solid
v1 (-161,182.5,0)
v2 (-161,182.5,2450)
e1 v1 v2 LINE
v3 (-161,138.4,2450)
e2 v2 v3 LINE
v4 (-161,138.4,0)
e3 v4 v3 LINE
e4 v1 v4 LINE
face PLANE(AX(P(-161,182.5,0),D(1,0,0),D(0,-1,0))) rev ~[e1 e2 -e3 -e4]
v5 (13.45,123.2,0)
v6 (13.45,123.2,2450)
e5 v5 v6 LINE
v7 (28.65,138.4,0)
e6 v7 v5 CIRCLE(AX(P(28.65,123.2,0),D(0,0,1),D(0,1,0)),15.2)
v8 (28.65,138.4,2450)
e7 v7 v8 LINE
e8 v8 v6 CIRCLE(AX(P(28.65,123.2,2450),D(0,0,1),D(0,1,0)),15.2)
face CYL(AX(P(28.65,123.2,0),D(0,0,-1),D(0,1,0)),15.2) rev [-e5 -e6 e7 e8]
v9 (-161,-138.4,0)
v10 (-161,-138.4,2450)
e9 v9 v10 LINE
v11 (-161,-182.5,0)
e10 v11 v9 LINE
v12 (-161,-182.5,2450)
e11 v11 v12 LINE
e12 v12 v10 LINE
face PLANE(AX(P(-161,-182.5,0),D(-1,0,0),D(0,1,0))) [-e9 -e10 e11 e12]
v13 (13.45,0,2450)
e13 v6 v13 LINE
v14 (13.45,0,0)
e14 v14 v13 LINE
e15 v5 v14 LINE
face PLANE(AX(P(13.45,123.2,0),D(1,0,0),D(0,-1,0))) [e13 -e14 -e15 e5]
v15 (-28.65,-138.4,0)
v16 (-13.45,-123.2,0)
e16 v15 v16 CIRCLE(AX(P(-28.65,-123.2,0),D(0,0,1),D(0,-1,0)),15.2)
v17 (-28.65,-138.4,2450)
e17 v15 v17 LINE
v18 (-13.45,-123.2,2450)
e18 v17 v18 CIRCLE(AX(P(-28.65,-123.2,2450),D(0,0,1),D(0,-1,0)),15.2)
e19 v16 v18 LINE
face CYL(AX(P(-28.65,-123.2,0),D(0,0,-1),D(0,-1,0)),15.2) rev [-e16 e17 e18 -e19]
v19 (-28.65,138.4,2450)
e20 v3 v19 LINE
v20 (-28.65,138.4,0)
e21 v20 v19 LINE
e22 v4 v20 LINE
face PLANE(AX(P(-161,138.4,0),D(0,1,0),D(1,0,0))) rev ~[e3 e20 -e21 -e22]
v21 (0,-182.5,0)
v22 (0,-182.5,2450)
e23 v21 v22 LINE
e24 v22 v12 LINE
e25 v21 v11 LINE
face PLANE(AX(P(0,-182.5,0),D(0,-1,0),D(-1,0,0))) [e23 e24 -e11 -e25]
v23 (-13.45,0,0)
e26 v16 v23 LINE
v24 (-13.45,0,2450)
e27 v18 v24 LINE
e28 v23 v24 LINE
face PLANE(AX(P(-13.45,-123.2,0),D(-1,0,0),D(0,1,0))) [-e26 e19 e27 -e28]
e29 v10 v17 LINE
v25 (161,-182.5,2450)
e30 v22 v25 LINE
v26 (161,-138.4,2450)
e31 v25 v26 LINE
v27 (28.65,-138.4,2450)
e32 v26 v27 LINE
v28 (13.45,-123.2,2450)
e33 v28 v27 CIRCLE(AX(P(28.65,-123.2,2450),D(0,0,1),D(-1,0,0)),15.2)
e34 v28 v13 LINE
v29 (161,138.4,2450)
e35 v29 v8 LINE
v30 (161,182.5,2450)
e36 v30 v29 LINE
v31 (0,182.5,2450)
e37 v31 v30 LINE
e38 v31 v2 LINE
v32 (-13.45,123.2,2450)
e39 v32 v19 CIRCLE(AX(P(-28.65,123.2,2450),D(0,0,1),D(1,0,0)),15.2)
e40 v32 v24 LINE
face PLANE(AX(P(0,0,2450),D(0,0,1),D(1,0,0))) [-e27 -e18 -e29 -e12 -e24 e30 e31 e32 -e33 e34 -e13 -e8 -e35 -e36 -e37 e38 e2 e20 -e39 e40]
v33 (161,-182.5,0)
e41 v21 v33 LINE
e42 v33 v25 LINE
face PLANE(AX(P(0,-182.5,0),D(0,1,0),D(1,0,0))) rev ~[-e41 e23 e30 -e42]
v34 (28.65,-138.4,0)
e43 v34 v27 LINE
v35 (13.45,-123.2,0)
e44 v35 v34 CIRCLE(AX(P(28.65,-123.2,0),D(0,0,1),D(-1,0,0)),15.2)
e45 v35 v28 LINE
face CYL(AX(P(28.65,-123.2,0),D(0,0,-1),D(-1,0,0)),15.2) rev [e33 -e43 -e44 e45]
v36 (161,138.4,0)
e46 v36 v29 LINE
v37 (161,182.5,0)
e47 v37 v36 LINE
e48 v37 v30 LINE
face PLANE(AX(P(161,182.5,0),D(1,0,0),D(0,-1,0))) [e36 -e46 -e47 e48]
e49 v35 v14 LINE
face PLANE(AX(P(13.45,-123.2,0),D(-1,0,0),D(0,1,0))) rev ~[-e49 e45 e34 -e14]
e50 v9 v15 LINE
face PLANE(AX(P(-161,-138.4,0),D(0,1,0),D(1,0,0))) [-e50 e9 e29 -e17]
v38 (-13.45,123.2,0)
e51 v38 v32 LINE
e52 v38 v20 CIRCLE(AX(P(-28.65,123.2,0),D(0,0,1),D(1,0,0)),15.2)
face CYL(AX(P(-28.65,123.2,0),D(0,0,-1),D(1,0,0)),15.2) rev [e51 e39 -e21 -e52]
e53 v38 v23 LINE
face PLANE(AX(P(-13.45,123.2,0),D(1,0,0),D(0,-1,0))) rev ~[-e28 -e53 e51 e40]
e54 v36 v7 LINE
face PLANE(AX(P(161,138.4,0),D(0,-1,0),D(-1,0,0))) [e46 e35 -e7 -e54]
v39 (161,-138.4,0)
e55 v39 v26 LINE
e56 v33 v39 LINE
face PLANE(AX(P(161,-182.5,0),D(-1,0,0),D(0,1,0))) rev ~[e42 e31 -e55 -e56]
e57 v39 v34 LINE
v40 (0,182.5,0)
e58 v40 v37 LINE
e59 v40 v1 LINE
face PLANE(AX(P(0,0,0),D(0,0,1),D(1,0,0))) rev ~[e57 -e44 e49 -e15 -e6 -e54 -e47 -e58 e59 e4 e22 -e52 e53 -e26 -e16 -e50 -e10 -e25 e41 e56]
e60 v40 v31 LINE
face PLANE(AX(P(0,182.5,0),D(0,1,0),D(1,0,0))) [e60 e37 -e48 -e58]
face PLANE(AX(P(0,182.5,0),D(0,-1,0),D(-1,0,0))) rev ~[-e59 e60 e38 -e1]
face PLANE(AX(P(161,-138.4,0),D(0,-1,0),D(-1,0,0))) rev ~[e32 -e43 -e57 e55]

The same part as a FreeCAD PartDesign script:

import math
import FreeCAD as App
import Part
import Sketcher
Q = App.Units.Quantity

doc = App.newDocument("Part")
body = doc.addObject("PartDesign::Body", "Body")

# Sketch on XY plane
sketch1 = doc.addObject("Sketcher::SketchObject", "Sketch")
body.addObject(sketch1)
sketch1.AttachmentSupport = (doc.XY_Plane, [""])
sketch1.MapMode = "FlatFace"
sketch1.addGeometry([
    Part.LineSegment(App.Vector(-161, -138, 0), App.Vector(-161, -182, 0)),  # 0
    Part.LineSegment(App.Vector(-161, -182, 0), App.Vector(161, -182, 0)),  # 1
    Part.LineSegment(App.Vector(161, -182, 0), App.Vector(161, -138, 0)),  # 2
    Part.LineSegment(App.Vector(161, -138, 0), App.Vector(29, -138, 0)),  # 3
    Part.ArcOfCircle(Part.Circle(App.Vector(29, -123, 0), App.Vector(0, 0, 1), 15), math.radians(180), math.radians(270)),  # 4
    Part.LineSegment(App.Vector(13, -123, 0), App.Vector(13, 123, 0)),  # 5
    Part.ArcOfCircle(Part.Circle(App.Vector(29, 123, 0), App.Vector(0, 0, 1), 15), math.radians(90), math.radians(180)),  # 6
    Part.LineSegment(App.Vector(29, 138, 0), App.Vector(161, 138, 0)),  # 7
    Part.LineSegment(App.Vector(161, 138, 0), App.Vector(161, 182, 0)),  # 8
    Part.LineSegment(App.Vector(161, 182, 0), App.Vector(-161, 182, 0)),  # 9
    Part.LineSegment(App.Vector(-161, 182, 0), App.Vector(-161, 138, 0)),  # 10
    Part.LineSegment(App.Vector(-161, 138, 0), App.Vector(-29, 138, 0)),  # 11
    Part.ArcOfCircle(Part.Circle(App.Vector(-29, 123, 0), App.Vector(0, 0, 1), 15), math.radians(0), math.radians(90)),  # 12
    Part.LineSegment(App.Vector(-13, 123, 0), App.Vector(-13, -123, 0)),  # 13
    Part.ArcOfCircle(Part.Circle(App.Vector(-29, -123, 0), App.Vector(0, 0, 1), 15), math.radians(-90), math.radians(0)),  # 14
    Part.LineSegment(App.Vector(-29, -138, 0), App.Vector(-161, -138, 0)),  # 15
], False)
sketch1.addConstraint([
    Sketcher.Constraint("Coincident", 0, 2, 1, 1),
    Sketcher.Constraint("Coincident", 1, 2, 2, 1),
    Sketcher.Constraint("Coincident", 2, 2, 3, 1),
    Sketcher.Constraint("Tangent", 3, 2, 4, 2),
    Sketcher.Constraint("Tangent", 4, 1, 5, 1),
    Sketcher.Constraint("Tangent", 5, 2, 6, 2),
    Sketcher.Constraint("Tangent", 6, 1, 7, 1),
    Sketcher.Constraint("Coincident", 7, 2, 8, 1),
    Sketcher.Constraint("Coincident", 8, 2, 9, 1),
    Sketcher.Constraint("Coincident", 9, 2, 10, 1),
    Sketcher.Constraint("Coincident", 10, 2, 11, 1),
    Sketcher.Constraint("Tangent", 11, 2, 12, 2),
    Sketcher.Constraint("Tangent", 12, 1, 13, 1),
    Sketcher.Constraint("Tangent", 13, 2, 14, 2),
    Sketcher.Constraint("Tangent", 14, 1, 15, 1),
    Sketcher.Constraint("Coincident", 15, 2, 0, 1),
    Sketcher.Constraint("Vertical", 0),
    Sketcher.Constraint("Horizontal", 1),
    Sketcher.Constraint("Vertical", 2),
    Sketcher.Constraint("Horizontal", 3),
    Sketcher.Constraint("Vertical", 5),
    Sketcher.Constraint("Horizontal", 7),
    Sketcher.Constraint("Vertical", 8),
    Sketcher.Constraint("Horizontal", 9),
    Sketcher.Constraint("Vertical", 10),
    Sketcher.Constraint("Horizontal", 11),
    Sketcher.Constraint("Vertical", 13),
    Sketcher.Constraint("Horizontal", 15),
    Sketcher.Constraint("Equal", 4, 6),
    Sketcher.Constraint("Equal", 6, 12),
    Sketcher.Constraint("Equal", 12, 14),
    Sketcher.Constraint("Symmetric", 4, 3, 12, 3, -1, 1),
    Sketcher.Constraint("Symmetric", 0, 2, 8, 2, -1, 1),
    Sketcher.Constraint("Symmetric", 7, 2, 10, 2, -2),
    Sketcher.Constraint("Symmetric", 2, 2, 15, 2, -2),
    Sketcher.Constraint("Radius", 4, Q("15.2 mm")),
    Sketcher.Constraint("DistanceY", 0, 2, 0, 1, Q("44.1 mm")),
    Sketcher.Constraint("DistanceX", 0, 2, -1, 1, Q("161 mm")),
    Sketcher.Constraint("DistanceY", 0, 2, -1, 1, Q("182.5 mm")),
    Sketcher.Constraint("DistanceX", -1, 1, 4, 1, Q("13.45 mm")),
])
pad1 = doc.addObject("PartDesign::Pad", "Pad")
body.addObject(pad1)
pad1.Profile = sketch1
pad1.Length = 2450

doc.recompute()
